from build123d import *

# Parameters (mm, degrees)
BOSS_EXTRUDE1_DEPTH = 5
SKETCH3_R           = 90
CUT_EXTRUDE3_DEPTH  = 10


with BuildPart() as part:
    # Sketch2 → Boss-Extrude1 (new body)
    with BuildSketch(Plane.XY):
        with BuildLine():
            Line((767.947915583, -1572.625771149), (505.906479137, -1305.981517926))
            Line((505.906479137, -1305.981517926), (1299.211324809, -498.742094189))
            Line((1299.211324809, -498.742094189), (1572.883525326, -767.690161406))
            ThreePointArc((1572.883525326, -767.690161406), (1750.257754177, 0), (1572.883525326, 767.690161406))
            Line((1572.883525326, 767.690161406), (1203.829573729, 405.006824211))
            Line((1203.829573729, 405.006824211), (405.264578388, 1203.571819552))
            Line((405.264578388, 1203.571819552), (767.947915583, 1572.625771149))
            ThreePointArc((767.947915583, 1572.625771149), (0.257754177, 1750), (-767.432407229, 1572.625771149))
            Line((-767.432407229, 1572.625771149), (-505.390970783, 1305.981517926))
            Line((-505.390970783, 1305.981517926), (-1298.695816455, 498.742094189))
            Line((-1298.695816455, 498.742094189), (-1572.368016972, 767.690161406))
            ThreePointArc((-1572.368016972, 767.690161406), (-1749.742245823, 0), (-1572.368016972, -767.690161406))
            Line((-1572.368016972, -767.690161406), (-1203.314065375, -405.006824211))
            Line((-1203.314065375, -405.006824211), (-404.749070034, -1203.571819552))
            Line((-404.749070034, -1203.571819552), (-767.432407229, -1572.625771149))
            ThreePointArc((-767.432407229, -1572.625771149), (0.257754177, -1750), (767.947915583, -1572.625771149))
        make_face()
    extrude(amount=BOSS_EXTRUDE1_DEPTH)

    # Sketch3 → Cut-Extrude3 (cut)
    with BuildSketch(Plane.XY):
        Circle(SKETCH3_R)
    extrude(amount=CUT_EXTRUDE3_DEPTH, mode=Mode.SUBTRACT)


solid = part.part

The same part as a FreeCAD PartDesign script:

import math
import FreeCAD as App
import Part
import Sketcher

V = App.Vector
Q = App.Units.Quantity

doc = App.newDocument("Part")
body = doc.addObject("PartDesign::Body", "Body")

sketch1 = body.newObject("Sketcher::SketchObject", "Sketch")
sketch1.AttachmentSupport = (doc.getObject("XY_Plane"), [""])
sketch1.MapMode = "FlatFace"
sketch1.addGeometry(Part.LineSegment(V(767.947916, -1572.625771, 0), V(505.906479, -1305.981518, 0)), False)
sketch1.addGeometry(Part.LineSegment(V(505.906479, -1305.981518, 0), V(1299.211325, -498.742094, 0)), False)
sketch1.addGeometry(Part.LineSegment(V(1299.211325, -498.742094, 0), V(1572.883525, -767.690161, 0)), False)
sketch1.addGeometry(Part.ArcOfCircle(Part.Circle(V(0.257754, 0, 0), V(0, 0, 1), 1750), math.radians(-26.019696), math.radians(26.019696)), False)
sketch1.addGeometry(Part.LineSegment(V(1572.883525, 767.690161, 0), V(1203.829574, 405.006824, 0)), False)
sketch1.addGeometry(Part.LineSegment(V(1203.829574, 405.006824, 0), V(405.264578, 1203.57182, 0)), False)
sketch1.addGeometry(Part.LineSegment(V(405.264578, 1203.57182, 0), V(767.947916, 1572.625771, 0)), False)
sketch1.addGeometry(Part.ArcOfCircle(Part.Circle(V(0.257754, 0, 0), V(0, 0, 1), 1750), math.radians(63.980304), math.radians(116.019696)), False)
sketch1.addGeometry(Part.LineSegment(V(-767.432407, 1572.625771, 0), V(-505.390971, 1305.981518, 0)), False)
sketch1.addGeometry(Part.LineSegment(V(-505.390971, 1305.981518, 0), V(-1298.695816, 498.742094, 0)), False)
sketch1.addGeometry(Part.LineSegment(V(-1298.695816, 498.742094, 0), V(-1572.368017, 767.690161, 0)), False)
sketch1.addGeometry(Part.ArcOfCircle(Part.Circle(V(0.257754, 0, 0), V(0, 0, 1), 1750), math.radians(153.980304), math.radians(206.019696)), False)
sketch1.addGeometry(Part.LineSegment(V(-1572.368017, -767.690161, 0), V(-1203.314065, -405.006824, 0)), False)
sketch1.addGeometry(Part.LineSegment(V(-1203.314065, -405.006824, 0), V(-404.74907, -1203.57182, 0)), False)
sketch1.addGeometry(Part.LineSegment(V(-404.74907, -1203.57182, 0), V(-767.432407, -1572.625771, 0)), False)
sketch1.addGeometry(Part.ArcOfCircle(Part.Circle(V(0.257754, 0, 0), V(0, 0, 1), 1750), math.radians(-116.019696), math.radians(-63.980304)), False)
sketch1.addConstraint(Sketcher.Constraint("Coincident", 0, 2, 1, 1))
sketch1.addConstraint(Sketcher.Constraint("Coincident", 1, 2, 2, 1))
sketch1.addConstraint(Sketcher.Constraint("Coincident", 2, 2, 3, 1))
sketch1.addConstraint(Sketcher.Constraint("Coincident", 3, 2, 4, 1))
sketch1.addConstraint(Sketcher.Constraint("Coincident", 4, 2, 5, 1))
sketch1.addConstraint(Sketcher.Constraint("Coincident", 5, 2, 6, 1))
sketch1.addConstraint(Sketcher.Constraint("Coincident", 6, 2, 7, 1))
sketch1.addConstraint(Sketcher.Constraint("Coincident", 7, 2, 8, 1))
sketch1.addConstraint(Sketcher.Constraint("Coincident", 8, 2, 9, 1))
sketch1.addConstraint(Sketcher.Constraint("Coincident", 9, 2, 10, 1))
sketch1.addConstraint(Sketcher.Constraint("Coincident", 10, 2, 11, 1))
sketch1.addConstraint(Sketcher.Constraint("Coincident", 11, 2, 12, 1))
sketch1.addConstraint(Sketcher.Constraint("Coincident", 12, 2, 13, 1))
sketch1.addConstraint(Sketcher.Constraint("Coincident", 13, 2, 14, 1))
sketch1.addConstraint(Sketcher.Constraint("Coincident", 14, 2, 15, 1))
sketch1.addConstraint(Sketcher.Constraint("Coincident", 15, 2, 0, 1))
sketch1.addConstraint(Sketcher.Constraint("Coincident", 7, 3, 3, 3))
sketch1.addConstraint(Sketcher.Constraint("Coincident", 11, 3, 3, 3))
sketch1.addConstraint(Sketcher.Constraint("Coincident", 15, 3, 3, 3))
sketch1.addConstraint(Sketcher.Constraint("Equal", 3, 7))
sketch1.addConstraint(Sketcher.Constraint("Equal", 7, 11))
sketch1.addConstraint(Sketcher.Constraint("Equal", 11, 15))
sketch1.addConstraint(Sketcher.Constraint("PointOnObject", 3, 3, -1))
sketch1.addConstraint(Sketcher.Constraint("Perpendicular", 1, 2))
sketch1.addConstraint(Sketcher.Constraint("Perpendicular", 0, 4))
sketch1.addConstraint(Sketcher.Constraint("Perpendicular", 2, 6))
sketch1.addConstraint(Sketcher.Constraint("Perpendicular", 4, 8))
sketch1.addConstraint(Sketcher.Constraint("Parallel", 6, 9))
sketch1.addConstraint(Sketcher.Constraint("Perpendicular", 9, 10))
sketch1.addConstraint(Sketcher.Constraint("Perpendicular", 8, 12))
sketch1.addConstraint(Sketcher.Constraint("Parallel", 5, 13))
sketch1.addConstraint(Sketcher.Constraint("Perpendicular", 10, 14))
sketch1.addConstraint(Sketcher.Constraint("Equal", 4, 6))
sketch1.addConstraint(Sketcher.Constraint("Equal", 0, 8))
sketch1.addConstraint(Sketcher.Constraint("Equal", 1, 9))
sketch1.addConstraint(Sketcher.Constraint("Equal", 2, 10))
sketch1.addConstraint(Sketcher.Constraint("Equal", 6, 12))
sketch1.addConstraint(Sketcher.Constraint("Equal", 5, 13))
sketch1.addConstraint(Sketcher.Constraint("Equal", 12, 14))
sketch1.addConstraint(Sketcher.Constraint("Radius", 3, Q("1750 mm")))
sketch1.addConstraint(Sketcher.Constraint("Angle", 5, Q("135 deg")))
sketch1.addConstraint(Sketcher.Constraint("DistanceX", 1, 2, 2, 2, Q("273.672201 mm")))
sketch1.addConstraint(Sketcher.Constraint("DistanceY", 5, 2, 8, 2, Q("102.409698 mm")))
sketch1.addConstraint(Sketcher.Constraint("Distance", 2, Q("383.705012 mm")))
sketch1.addConstraint(Sketcher.Constraint("DistanceX", -1, 1, 0, 2, Q("505.906479 mm")))
sketch1.addConstraint(Sketcher.Constraint("DistanceY", 2, 2, -1, 1, Q("767.690161 mm")))
sketch1.addConstraint(Sketcher.Constraint("DistanceX", -1, 1, 5, 2, Q("405.264578 mm")))
sketch1.addConstraint(Sketcher.Constraint("DistanceY", -1, 1, 5, 2, Q("1203.57182 mm")))
sketch1.addConstraint(Sketcher.Constraint("DistanceX", 4, 2, 1, 2, Q("95.381751 mm")))
pad1 = body.newObject("PartDesign::Pad", "Pad")
pad1.Profile = sketch1
pad1.Length = 5

sketch2 = body.newObject("Sketcher::SketchObject", "Sketch001")
sketch2.AttachmentSupport = (doc.getObject("XY_Plane"), [""])
sketch2.MapMode = "FlatFace"
sketch2.addGeometry(Part.Circle(V(0, 0, 0), V(0, 0, 1), 90), False)
sketch2.addConstraint(Sketcher.Constraint("Coincident", 0, 3, -1, 1))
sketch2.addConstraint(Sketcher.Constraint("Diameter", 0, Q("180 mm")))
pocket1 = body.newObject("PartDesign::Pocket", "Pocket")
pocket1.Profile = sketch2
pocket1.Length = 10
pocket1.Reversed = True

doc.recompute()
